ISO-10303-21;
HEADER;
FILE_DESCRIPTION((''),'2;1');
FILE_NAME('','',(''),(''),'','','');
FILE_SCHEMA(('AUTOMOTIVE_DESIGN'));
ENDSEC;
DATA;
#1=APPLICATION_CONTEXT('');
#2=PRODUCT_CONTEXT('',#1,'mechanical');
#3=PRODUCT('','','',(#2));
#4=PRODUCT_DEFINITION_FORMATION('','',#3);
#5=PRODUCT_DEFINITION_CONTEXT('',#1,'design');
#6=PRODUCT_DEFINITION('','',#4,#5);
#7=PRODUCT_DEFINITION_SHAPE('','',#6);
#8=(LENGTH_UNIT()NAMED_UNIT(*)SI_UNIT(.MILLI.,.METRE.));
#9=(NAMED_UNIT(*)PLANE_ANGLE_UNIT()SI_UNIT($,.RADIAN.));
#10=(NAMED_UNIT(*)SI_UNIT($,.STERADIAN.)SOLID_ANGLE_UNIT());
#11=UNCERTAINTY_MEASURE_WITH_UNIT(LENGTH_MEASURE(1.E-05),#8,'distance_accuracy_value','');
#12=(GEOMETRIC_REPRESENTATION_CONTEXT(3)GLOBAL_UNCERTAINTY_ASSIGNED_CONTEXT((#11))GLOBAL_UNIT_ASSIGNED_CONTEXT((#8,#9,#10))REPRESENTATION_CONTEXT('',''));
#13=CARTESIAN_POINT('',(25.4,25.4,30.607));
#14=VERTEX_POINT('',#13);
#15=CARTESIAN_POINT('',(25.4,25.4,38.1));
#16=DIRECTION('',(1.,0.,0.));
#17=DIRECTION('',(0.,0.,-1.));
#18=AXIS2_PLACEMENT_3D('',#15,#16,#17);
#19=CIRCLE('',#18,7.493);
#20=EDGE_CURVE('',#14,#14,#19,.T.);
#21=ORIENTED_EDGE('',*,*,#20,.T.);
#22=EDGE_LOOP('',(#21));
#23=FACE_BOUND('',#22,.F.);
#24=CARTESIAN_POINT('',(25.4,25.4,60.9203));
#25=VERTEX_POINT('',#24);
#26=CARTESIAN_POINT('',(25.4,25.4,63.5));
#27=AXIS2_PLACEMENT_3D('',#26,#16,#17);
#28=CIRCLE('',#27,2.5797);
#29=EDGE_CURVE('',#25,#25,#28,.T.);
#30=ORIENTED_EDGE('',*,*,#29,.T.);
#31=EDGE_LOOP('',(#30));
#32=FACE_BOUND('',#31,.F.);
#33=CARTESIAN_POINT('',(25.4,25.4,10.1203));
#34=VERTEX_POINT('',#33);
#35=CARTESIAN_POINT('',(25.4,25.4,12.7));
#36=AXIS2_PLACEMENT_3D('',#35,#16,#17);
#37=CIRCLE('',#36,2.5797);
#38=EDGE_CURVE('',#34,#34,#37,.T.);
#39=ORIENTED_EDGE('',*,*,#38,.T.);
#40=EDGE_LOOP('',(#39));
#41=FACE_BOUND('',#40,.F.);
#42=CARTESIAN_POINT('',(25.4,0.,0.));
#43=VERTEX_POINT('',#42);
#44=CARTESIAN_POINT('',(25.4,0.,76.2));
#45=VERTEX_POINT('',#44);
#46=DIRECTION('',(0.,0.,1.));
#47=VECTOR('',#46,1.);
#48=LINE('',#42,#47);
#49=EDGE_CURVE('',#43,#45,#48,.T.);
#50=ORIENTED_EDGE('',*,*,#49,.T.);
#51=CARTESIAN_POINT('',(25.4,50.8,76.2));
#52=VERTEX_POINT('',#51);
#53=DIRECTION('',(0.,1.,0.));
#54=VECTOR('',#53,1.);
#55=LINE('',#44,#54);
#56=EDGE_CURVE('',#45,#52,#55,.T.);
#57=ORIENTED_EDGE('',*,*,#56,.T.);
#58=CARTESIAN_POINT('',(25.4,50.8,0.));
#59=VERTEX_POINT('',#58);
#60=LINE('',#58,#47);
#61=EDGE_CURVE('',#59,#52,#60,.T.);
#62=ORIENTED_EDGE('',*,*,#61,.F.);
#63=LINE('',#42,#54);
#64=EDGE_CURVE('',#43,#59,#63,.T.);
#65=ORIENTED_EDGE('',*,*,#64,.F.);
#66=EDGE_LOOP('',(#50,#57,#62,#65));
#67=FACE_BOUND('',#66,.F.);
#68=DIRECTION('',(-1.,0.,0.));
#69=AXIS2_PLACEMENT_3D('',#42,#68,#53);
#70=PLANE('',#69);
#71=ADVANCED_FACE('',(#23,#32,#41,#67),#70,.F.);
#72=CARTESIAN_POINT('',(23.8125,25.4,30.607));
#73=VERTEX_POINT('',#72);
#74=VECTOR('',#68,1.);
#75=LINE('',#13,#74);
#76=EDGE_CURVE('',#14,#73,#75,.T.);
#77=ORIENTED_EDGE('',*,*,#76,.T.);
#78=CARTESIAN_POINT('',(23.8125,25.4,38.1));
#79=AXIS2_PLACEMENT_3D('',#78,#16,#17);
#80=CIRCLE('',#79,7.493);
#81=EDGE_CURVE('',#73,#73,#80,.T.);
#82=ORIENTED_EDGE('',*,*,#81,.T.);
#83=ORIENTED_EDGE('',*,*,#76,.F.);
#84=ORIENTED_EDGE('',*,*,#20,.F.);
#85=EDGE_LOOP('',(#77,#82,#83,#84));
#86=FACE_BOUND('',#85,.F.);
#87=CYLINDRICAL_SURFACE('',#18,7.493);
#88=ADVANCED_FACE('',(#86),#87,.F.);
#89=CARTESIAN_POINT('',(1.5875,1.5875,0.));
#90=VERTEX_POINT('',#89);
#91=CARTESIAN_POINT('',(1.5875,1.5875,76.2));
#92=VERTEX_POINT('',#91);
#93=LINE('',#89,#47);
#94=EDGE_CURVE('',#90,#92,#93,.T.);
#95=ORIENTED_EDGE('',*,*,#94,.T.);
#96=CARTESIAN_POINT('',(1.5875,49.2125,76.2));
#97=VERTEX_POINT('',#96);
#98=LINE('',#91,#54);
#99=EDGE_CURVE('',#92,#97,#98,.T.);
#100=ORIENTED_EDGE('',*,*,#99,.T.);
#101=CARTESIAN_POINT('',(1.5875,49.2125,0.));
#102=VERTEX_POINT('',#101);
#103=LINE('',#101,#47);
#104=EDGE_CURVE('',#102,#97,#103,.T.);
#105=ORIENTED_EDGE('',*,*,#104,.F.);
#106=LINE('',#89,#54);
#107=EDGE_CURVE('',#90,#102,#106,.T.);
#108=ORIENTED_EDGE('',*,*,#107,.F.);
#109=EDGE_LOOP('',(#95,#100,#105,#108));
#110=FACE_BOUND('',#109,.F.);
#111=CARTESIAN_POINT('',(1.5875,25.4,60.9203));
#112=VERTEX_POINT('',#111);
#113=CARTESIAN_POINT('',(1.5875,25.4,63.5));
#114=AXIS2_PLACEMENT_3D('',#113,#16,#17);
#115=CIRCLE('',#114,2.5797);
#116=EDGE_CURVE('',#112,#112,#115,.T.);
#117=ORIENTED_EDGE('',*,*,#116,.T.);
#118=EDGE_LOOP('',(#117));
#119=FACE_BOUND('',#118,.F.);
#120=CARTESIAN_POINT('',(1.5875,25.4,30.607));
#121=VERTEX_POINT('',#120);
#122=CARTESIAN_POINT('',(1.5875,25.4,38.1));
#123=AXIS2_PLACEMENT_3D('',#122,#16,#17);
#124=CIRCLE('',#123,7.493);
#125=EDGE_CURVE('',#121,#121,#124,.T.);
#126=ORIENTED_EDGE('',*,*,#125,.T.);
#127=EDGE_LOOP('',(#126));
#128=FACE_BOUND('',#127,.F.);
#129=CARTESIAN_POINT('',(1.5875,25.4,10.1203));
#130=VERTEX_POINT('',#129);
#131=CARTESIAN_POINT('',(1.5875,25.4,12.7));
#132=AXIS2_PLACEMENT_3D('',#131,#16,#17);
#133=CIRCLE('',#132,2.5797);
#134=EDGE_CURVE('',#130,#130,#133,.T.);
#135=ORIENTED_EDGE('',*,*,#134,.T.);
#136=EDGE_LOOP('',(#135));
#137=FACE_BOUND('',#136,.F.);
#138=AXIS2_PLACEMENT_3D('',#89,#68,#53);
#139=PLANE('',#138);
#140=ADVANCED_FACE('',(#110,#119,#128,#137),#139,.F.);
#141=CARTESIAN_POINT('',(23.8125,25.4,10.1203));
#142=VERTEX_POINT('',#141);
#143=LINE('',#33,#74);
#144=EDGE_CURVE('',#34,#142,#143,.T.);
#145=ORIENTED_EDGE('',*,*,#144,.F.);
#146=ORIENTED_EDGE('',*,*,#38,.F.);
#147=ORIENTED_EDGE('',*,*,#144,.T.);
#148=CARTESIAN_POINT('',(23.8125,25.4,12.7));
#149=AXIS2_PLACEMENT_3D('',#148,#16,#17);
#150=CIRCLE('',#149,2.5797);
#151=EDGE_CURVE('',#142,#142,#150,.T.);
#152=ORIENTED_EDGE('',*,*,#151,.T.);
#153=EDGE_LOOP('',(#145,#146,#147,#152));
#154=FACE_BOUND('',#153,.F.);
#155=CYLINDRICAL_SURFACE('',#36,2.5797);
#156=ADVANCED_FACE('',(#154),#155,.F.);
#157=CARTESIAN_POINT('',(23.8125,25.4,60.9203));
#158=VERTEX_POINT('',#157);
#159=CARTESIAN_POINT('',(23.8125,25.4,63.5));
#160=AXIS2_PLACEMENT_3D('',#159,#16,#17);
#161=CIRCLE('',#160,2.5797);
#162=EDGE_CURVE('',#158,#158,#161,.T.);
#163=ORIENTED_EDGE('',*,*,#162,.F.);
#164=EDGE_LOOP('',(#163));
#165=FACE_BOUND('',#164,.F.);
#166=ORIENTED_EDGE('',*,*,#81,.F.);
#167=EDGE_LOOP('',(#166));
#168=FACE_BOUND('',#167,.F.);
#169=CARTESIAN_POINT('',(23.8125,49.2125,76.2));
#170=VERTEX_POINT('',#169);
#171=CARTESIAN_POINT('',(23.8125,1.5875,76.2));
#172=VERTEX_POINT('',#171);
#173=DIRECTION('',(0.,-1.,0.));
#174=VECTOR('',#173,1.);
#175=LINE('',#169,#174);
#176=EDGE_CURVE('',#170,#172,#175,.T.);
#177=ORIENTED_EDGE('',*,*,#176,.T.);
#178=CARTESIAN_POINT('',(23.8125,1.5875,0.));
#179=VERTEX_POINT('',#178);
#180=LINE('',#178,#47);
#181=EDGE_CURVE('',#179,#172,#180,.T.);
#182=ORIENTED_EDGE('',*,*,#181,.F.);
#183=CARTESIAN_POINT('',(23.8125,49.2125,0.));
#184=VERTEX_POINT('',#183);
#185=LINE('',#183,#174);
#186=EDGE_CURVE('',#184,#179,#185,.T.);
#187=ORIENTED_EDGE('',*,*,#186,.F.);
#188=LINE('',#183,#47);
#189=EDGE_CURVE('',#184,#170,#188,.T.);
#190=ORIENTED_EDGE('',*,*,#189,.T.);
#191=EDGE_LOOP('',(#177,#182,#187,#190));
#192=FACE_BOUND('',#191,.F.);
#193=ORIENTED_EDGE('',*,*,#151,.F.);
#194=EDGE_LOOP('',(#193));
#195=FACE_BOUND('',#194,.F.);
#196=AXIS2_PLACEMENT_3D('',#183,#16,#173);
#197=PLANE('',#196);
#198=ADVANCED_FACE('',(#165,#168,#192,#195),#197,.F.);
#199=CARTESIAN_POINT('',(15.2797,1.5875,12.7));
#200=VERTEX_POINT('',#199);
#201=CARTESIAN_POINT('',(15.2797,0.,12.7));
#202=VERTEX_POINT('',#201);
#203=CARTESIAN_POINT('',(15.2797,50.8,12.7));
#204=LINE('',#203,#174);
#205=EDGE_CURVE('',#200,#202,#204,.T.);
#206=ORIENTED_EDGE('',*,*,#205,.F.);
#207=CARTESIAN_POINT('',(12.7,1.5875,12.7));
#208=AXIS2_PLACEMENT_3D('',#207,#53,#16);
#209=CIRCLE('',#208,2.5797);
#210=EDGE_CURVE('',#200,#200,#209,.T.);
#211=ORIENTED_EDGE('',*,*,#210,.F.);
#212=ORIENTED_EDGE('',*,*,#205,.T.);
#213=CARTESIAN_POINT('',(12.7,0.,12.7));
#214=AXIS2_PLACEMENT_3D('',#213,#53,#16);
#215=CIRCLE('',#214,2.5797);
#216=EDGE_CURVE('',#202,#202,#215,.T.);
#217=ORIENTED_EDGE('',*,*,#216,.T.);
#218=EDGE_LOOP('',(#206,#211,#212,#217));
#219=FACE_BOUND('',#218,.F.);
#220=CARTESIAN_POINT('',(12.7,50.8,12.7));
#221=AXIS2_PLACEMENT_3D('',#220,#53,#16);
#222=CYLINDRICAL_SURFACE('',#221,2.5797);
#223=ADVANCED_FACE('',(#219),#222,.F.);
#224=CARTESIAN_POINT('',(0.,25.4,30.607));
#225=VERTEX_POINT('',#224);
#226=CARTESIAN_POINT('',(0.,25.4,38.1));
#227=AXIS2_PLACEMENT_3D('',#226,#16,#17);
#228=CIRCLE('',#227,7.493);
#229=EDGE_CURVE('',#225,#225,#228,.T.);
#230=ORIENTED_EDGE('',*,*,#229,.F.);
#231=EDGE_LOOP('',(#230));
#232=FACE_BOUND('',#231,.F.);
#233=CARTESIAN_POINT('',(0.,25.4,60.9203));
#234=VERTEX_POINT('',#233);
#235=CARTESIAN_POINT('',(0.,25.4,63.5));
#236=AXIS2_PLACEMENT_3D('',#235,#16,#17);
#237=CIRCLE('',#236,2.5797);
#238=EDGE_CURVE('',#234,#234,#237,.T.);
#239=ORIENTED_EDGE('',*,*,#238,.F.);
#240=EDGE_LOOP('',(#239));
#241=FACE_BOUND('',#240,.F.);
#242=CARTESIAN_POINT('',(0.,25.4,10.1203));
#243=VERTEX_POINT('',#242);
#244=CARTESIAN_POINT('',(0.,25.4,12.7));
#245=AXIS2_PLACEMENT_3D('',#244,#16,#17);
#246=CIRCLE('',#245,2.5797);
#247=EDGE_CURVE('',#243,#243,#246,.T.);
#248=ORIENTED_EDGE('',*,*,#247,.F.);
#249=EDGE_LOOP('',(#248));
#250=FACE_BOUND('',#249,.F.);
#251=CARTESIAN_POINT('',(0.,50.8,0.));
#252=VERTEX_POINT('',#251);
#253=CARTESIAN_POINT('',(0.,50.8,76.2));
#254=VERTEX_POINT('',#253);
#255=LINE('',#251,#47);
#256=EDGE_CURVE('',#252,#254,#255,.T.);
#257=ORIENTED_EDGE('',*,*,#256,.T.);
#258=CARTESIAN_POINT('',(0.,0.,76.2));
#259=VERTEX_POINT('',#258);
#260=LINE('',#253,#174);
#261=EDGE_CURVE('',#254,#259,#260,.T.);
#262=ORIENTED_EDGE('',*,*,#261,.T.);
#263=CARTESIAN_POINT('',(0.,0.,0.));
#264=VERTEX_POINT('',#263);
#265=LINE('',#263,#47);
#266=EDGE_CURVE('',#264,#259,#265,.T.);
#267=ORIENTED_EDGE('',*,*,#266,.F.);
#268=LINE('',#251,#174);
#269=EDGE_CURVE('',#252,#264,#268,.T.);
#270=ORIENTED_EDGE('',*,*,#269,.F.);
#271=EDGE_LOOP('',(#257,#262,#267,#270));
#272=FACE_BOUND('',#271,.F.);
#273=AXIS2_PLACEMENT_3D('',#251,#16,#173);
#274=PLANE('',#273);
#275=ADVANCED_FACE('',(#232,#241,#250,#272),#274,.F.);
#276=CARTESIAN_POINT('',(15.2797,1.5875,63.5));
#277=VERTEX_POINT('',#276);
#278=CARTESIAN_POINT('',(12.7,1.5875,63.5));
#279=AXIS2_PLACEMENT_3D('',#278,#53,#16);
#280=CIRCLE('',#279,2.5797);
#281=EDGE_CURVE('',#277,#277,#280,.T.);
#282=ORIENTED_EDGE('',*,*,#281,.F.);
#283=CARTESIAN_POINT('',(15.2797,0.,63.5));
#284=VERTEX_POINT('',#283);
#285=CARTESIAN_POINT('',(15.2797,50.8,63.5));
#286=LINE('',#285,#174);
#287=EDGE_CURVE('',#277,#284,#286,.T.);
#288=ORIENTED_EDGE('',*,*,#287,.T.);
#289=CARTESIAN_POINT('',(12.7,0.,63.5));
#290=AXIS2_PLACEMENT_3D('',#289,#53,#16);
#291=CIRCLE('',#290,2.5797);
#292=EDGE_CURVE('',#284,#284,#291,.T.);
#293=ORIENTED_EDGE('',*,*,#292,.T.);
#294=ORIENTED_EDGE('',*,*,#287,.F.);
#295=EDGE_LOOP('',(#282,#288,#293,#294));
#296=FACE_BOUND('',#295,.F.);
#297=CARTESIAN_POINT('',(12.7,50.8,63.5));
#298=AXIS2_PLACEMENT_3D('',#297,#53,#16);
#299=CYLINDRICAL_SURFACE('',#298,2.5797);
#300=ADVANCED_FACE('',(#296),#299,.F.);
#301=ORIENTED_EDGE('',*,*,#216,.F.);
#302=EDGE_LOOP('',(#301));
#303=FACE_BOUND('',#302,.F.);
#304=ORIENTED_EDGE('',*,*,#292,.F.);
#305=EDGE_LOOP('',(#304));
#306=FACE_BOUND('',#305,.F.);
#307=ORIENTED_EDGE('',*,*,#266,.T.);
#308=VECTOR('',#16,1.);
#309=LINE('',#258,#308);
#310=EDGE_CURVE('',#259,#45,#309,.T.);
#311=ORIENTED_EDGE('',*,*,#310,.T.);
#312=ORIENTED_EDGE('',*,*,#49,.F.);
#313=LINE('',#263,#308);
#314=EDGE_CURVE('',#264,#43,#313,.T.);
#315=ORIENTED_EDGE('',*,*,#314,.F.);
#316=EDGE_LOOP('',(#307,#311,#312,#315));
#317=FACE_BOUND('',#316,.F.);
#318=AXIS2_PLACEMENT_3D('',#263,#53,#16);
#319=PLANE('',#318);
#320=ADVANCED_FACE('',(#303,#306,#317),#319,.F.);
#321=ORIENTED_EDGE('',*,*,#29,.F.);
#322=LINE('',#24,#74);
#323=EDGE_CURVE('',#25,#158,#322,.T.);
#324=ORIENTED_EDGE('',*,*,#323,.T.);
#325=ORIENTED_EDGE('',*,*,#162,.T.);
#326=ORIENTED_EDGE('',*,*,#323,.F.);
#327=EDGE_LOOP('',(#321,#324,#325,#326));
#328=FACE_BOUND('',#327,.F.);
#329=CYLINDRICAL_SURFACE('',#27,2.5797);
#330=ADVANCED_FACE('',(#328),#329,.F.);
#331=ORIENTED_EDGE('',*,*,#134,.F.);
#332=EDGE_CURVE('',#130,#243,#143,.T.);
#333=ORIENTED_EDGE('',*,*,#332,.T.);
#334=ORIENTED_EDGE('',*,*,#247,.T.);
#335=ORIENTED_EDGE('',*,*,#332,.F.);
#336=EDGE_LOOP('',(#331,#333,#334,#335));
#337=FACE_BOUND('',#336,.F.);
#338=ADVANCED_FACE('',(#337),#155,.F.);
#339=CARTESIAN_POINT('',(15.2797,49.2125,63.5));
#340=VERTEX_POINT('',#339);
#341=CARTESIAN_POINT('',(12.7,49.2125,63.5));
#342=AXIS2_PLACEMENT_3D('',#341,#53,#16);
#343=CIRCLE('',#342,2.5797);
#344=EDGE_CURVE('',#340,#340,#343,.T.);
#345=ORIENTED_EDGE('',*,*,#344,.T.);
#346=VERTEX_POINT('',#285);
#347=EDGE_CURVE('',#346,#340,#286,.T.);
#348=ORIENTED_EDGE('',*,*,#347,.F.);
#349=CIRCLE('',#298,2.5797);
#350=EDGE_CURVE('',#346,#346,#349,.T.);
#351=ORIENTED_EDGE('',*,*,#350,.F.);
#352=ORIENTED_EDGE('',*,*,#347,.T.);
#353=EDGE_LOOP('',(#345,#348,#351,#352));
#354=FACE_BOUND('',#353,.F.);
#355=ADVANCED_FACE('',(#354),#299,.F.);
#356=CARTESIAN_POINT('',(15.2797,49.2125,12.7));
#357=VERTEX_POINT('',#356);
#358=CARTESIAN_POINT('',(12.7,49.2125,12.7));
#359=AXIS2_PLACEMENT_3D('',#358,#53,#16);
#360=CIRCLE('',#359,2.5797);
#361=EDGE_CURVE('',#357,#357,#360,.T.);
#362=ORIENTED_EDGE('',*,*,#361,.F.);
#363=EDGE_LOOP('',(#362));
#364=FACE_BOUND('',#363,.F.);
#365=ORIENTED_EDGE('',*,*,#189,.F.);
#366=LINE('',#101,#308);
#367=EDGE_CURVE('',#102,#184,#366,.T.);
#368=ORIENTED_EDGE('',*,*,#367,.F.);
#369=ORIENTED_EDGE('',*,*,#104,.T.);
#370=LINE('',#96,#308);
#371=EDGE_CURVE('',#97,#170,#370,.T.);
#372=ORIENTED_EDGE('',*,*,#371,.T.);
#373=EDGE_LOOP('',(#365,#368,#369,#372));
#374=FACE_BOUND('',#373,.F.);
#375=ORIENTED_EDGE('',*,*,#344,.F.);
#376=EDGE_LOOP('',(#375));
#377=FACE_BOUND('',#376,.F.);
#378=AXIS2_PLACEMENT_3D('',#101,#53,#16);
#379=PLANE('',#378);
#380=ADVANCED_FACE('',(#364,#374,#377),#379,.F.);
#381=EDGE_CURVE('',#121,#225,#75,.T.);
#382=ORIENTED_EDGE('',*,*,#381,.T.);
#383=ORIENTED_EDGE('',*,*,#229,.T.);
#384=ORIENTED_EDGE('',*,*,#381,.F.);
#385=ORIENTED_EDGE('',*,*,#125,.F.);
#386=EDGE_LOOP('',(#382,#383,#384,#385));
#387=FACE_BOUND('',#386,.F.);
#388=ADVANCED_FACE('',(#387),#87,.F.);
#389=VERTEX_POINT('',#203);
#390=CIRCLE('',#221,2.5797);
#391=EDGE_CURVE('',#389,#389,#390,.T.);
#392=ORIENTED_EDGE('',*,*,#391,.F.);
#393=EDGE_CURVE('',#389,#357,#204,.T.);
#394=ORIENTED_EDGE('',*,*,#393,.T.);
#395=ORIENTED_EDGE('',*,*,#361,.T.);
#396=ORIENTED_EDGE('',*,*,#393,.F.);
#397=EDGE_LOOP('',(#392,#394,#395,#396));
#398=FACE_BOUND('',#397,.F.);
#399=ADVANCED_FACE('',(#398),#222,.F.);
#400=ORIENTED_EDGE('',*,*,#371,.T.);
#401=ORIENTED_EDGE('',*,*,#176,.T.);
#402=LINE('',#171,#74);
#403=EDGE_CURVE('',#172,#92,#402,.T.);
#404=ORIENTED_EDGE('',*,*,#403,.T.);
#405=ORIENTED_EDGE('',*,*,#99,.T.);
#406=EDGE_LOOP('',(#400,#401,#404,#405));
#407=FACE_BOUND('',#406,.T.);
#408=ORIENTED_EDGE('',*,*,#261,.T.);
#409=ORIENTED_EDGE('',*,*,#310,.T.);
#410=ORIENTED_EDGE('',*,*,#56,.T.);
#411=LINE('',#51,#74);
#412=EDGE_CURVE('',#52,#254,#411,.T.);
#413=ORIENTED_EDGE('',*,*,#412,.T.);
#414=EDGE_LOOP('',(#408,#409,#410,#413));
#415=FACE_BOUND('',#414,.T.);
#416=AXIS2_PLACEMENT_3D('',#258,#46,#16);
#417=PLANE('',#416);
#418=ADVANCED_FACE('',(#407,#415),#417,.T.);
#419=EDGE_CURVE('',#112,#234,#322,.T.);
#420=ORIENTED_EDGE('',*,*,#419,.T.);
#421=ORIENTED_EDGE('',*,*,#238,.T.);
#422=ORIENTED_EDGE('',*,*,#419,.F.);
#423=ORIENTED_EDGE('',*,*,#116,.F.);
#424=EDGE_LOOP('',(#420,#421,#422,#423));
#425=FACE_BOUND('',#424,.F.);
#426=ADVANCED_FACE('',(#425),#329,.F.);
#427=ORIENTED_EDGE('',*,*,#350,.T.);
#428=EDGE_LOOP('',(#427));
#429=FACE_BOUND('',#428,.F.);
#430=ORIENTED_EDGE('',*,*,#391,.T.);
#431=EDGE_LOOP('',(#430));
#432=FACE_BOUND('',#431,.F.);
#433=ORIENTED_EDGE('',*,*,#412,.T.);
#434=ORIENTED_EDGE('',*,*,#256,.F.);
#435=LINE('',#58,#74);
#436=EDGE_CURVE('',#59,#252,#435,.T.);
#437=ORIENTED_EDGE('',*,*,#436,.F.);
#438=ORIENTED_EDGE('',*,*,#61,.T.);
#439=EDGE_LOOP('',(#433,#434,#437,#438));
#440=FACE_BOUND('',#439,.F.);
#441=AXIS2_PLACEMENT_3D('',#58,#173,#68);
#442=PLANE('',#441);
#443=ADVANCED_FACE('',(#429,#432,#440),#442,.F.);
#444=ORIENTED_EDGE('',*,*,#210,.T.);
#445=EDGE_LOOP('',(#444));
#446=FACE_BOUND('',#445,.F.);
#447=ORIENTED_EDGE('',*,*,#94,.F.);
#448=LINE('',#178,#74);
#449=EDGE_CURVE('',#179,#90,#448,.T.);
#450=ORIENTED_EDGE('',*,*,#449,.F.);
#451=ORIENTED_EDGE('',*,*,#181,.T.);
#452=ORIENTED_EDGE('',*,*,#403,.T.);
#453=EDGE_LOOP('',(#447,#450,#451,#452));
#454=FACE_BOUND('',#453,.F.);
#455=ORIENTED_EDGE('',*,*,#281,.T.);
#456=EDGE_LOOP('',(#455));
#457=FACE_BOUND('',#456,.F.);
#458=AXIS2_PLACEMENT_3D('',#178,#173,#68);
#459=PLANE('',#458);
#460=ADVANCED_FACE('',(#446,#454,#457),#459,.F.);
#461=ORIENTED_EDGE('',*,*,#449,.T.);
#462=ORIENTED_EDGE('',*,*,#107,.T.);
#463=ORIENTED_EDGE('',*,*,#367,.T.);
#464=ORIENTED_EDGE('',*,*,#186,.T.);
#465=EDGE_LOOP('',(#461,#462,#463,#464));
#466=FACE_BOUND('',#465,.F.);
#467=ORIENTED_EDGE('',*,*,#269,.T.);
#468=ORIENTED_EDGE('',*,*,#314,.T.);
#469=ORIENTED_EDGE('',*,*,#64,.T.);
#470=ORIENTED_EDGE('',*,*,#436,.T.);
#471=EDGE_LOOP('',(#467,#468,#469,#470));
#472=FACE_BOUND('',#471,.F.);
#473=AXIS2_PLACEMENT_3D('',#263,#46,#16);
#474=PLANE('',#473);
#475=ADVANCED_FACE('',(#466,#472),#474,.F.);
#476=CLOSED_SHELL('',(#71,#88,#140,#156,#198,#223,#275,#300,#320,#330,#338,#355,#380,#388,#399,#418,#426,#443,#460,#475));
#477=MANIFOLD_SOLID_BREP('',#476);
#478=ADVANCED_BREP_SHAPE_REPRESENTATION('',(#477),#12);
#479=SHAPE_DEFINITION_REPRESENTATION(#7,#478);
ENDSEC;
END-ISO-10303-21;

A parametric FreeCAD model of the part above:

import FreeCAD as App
import Part
import Sketcher

V = App.Vector
Q = App.Units.Quantity


def add_polygon(sketch, points):
    """Adds a closed chain of lines whose ends are joined by coincident constraints."""
    first, n = sketch.GeometryCount, len(points)
    for a, b in zip(points, points[1:] + points[:1]):
        sketch.addGeometry(Part.LineSegment(App.Vector(*a, 0), App.Vector(*b, 0)), False)
    for i in range(n):
        sketch.addConstraint(Sketcher.Constraint("Coincident", first + i, 2, first + (i + 1) % n, 1))

doc = App.newDocument("Part")
body = doc.addObject("PartDesign::Body", "Body")

# Sketch on XY plane
sketch1 = body.newObject("Sketcher::SketchObject", "Sketch")
sketch1.AttachmentSupport = (doc.getObject("XY_Plane"), [""])
sketch1.MapMode = "FlatFace"
add_polygon(sketch1, [(0, 51), (0, 0), (25, 0), (25, 51)])  # lines 0-3
add_polygon(sketch1, [(2, 2), (2, 49), (24, 49), (24, 2)])  # lines 4-7
sketch1.addConstraint([
    Sketcher.Constraint("Vertical", 0),
    Sketcher.Constraint("Horizontal", 1),
    Sketcher.Constraint("Vertical", 2),
    Sketcher.Constraint("Horizontal", 3),
    Sketcher.Constraint("Vertical", 4),
    Sketcher.Constraint("Horizontal", 5),
    Sketcher.Constraint("Vertical", 6),
    Sketcher.Constraint("Horizontal", 7),
    Sketcher.Constraint("Coincident", 0, 2, -1, 1),
    Sketcher.Constraint("DistanceX", 1, 1, 1, 2, Q("1 in")),
    Sketcher.Constraint("DistanceY", 0, 2, 0, 1, Q("2 in")),
    Sketcher.Constraint("DistanceX", -1, 1, 4, 2, Q("0.0625 in")),
    Sketcher.Constraint("DistanceY", -1, 1, 6, 2, Q("0.0625 in")),
    Sketcher.Constraint("DistanceY", 4, 2, 3, 2, Q("0.0625 in")),
    Sketcher.Constraint("DistanceX", 5, 2, 2, 2, Q("0.0625 in")),
])
pad1 = body.newObject("PartDesign::Pad", "Pad")
pad1.Profile = sketch1
pad1.Length = Q("3 in")

# Sketch on YZ plane
sketch2 = body.newObject("Sketcher::SketchObject", "Sketch001")
sketch2.AttachmentSupport = (doc.getObject("YZ_Plane"), [""])
sketch2.MapMode = "FlatFace"
sketch2.AttachmentOffset = App.Placement(V(0, 0, 1 * 25.4), App.Rotation())
sketch2.addGeometry(Part.Circle(V(25, 38, 0), V(0, 0, 1), 7), False)
sketch2.addConstraint([
    Sketcher.Constraint("Diameter", 0, Q("0.59 in")),
    Sketcher.Constraint("DistanceX", -1, 1, 0, 3, Q("1 in")),
    Sketcher.Constraint("DistanceY", -1, 1, 0, 3, Q("1.5 in")),
])
pocket1 = body.newObject("PartDesign::Pocket", "Pocket")
pocket1.Profile = sketch2
pocket1.Length = Q("3.25 in")

# Sketch on XZ plane
sketch3 = body.newObject("Sketcher::SketchObject", "Sketch002")
sketch3.AttachmentSupport = (doc.getObject("XZ_Plane"), [""])
sketch3.MapMode = "FlatFace"
sketch3.AttachmentOffset = App.Placement(V(0, 0, -2 * 25.4), App.Rotation())
sketch3.addGeometry([
    Part.Circle(V(12.7, 63.5, 0), V(0, 0, 1), 2.6),
    Part.Circle(V(12.7, 12.7, 0), V(0, 0, 1), 2.6),
], False)
sketch3.addConstraint([
    Sketcher.Constraint("Equal", 0, 1),
    Sketcher.Constraint("Vertical", 0, 3, 1, 3),
    Sketcher.Constraint("Diameter", 0, Q("0.203126 in")),
    Sketcher.Constraint("DistanceX", -1, 1, 0, 3, Q("0.5 in")),
    Sketcher.Constraint("DistanceY", -1, 1, 1, 3, Q("0.5 in")),
    Sketcher.Constraint("DistanceY", 1, 3, 0, 3, Q("2 in")),
])
pocket2 = body.newObject("PartDesign::Pocket", "Pocket001")
pocket2.Profile = sketch3
pocket2.Length = Q("3.25 in")
pocket2.Reversed = True

# Sketch on YZ plane
sketch4 = body.newObject("Sketcher::SketchObject", "Sketch003")
sketch4.AttachmentSupport = (doc.getObject("YZ_Plane"), [""])
sketch4.MapMode = "FlatFace"
sketch4.AttachmentOffset = App.Placement(V(0, 0, 1 * 25.4), App.Rotation())
sketch4.addGeometry([
    Part.Circle(V(25.4, 63.5, 0), V(0, 0, 1), 2.6),
    Part.Circle(V(25.4, 12.7, 0), V(0, 0, 1), 2.6),
], False)
sketch4.addConstraint([
    Sketcher.Constraint("Equal", 0, 1),
    Sketcher.Constraint("Vertical", 0, 3, 1, 3),
    Sketcher.Constraint("Diameter", 0, Q("0.203126 in")),
    Sketcher.Constraint("DistanceY", -1, 1, 1, 3, Q("0.5 in")),
    Sketcher.Constraint("DistanceX", -1, 1, 0, 3, Q("1 in")),
    Sketcher.Constraint("DistanceY", 1, 3, 0, 3, Q("2 in")),
])
pocket3 = body.newObject("PartDesign::Pocket", "Pocket002")
pocket3.Profile = sketch4
pocket3.Length = Q("1 in")

doc.recompute()
